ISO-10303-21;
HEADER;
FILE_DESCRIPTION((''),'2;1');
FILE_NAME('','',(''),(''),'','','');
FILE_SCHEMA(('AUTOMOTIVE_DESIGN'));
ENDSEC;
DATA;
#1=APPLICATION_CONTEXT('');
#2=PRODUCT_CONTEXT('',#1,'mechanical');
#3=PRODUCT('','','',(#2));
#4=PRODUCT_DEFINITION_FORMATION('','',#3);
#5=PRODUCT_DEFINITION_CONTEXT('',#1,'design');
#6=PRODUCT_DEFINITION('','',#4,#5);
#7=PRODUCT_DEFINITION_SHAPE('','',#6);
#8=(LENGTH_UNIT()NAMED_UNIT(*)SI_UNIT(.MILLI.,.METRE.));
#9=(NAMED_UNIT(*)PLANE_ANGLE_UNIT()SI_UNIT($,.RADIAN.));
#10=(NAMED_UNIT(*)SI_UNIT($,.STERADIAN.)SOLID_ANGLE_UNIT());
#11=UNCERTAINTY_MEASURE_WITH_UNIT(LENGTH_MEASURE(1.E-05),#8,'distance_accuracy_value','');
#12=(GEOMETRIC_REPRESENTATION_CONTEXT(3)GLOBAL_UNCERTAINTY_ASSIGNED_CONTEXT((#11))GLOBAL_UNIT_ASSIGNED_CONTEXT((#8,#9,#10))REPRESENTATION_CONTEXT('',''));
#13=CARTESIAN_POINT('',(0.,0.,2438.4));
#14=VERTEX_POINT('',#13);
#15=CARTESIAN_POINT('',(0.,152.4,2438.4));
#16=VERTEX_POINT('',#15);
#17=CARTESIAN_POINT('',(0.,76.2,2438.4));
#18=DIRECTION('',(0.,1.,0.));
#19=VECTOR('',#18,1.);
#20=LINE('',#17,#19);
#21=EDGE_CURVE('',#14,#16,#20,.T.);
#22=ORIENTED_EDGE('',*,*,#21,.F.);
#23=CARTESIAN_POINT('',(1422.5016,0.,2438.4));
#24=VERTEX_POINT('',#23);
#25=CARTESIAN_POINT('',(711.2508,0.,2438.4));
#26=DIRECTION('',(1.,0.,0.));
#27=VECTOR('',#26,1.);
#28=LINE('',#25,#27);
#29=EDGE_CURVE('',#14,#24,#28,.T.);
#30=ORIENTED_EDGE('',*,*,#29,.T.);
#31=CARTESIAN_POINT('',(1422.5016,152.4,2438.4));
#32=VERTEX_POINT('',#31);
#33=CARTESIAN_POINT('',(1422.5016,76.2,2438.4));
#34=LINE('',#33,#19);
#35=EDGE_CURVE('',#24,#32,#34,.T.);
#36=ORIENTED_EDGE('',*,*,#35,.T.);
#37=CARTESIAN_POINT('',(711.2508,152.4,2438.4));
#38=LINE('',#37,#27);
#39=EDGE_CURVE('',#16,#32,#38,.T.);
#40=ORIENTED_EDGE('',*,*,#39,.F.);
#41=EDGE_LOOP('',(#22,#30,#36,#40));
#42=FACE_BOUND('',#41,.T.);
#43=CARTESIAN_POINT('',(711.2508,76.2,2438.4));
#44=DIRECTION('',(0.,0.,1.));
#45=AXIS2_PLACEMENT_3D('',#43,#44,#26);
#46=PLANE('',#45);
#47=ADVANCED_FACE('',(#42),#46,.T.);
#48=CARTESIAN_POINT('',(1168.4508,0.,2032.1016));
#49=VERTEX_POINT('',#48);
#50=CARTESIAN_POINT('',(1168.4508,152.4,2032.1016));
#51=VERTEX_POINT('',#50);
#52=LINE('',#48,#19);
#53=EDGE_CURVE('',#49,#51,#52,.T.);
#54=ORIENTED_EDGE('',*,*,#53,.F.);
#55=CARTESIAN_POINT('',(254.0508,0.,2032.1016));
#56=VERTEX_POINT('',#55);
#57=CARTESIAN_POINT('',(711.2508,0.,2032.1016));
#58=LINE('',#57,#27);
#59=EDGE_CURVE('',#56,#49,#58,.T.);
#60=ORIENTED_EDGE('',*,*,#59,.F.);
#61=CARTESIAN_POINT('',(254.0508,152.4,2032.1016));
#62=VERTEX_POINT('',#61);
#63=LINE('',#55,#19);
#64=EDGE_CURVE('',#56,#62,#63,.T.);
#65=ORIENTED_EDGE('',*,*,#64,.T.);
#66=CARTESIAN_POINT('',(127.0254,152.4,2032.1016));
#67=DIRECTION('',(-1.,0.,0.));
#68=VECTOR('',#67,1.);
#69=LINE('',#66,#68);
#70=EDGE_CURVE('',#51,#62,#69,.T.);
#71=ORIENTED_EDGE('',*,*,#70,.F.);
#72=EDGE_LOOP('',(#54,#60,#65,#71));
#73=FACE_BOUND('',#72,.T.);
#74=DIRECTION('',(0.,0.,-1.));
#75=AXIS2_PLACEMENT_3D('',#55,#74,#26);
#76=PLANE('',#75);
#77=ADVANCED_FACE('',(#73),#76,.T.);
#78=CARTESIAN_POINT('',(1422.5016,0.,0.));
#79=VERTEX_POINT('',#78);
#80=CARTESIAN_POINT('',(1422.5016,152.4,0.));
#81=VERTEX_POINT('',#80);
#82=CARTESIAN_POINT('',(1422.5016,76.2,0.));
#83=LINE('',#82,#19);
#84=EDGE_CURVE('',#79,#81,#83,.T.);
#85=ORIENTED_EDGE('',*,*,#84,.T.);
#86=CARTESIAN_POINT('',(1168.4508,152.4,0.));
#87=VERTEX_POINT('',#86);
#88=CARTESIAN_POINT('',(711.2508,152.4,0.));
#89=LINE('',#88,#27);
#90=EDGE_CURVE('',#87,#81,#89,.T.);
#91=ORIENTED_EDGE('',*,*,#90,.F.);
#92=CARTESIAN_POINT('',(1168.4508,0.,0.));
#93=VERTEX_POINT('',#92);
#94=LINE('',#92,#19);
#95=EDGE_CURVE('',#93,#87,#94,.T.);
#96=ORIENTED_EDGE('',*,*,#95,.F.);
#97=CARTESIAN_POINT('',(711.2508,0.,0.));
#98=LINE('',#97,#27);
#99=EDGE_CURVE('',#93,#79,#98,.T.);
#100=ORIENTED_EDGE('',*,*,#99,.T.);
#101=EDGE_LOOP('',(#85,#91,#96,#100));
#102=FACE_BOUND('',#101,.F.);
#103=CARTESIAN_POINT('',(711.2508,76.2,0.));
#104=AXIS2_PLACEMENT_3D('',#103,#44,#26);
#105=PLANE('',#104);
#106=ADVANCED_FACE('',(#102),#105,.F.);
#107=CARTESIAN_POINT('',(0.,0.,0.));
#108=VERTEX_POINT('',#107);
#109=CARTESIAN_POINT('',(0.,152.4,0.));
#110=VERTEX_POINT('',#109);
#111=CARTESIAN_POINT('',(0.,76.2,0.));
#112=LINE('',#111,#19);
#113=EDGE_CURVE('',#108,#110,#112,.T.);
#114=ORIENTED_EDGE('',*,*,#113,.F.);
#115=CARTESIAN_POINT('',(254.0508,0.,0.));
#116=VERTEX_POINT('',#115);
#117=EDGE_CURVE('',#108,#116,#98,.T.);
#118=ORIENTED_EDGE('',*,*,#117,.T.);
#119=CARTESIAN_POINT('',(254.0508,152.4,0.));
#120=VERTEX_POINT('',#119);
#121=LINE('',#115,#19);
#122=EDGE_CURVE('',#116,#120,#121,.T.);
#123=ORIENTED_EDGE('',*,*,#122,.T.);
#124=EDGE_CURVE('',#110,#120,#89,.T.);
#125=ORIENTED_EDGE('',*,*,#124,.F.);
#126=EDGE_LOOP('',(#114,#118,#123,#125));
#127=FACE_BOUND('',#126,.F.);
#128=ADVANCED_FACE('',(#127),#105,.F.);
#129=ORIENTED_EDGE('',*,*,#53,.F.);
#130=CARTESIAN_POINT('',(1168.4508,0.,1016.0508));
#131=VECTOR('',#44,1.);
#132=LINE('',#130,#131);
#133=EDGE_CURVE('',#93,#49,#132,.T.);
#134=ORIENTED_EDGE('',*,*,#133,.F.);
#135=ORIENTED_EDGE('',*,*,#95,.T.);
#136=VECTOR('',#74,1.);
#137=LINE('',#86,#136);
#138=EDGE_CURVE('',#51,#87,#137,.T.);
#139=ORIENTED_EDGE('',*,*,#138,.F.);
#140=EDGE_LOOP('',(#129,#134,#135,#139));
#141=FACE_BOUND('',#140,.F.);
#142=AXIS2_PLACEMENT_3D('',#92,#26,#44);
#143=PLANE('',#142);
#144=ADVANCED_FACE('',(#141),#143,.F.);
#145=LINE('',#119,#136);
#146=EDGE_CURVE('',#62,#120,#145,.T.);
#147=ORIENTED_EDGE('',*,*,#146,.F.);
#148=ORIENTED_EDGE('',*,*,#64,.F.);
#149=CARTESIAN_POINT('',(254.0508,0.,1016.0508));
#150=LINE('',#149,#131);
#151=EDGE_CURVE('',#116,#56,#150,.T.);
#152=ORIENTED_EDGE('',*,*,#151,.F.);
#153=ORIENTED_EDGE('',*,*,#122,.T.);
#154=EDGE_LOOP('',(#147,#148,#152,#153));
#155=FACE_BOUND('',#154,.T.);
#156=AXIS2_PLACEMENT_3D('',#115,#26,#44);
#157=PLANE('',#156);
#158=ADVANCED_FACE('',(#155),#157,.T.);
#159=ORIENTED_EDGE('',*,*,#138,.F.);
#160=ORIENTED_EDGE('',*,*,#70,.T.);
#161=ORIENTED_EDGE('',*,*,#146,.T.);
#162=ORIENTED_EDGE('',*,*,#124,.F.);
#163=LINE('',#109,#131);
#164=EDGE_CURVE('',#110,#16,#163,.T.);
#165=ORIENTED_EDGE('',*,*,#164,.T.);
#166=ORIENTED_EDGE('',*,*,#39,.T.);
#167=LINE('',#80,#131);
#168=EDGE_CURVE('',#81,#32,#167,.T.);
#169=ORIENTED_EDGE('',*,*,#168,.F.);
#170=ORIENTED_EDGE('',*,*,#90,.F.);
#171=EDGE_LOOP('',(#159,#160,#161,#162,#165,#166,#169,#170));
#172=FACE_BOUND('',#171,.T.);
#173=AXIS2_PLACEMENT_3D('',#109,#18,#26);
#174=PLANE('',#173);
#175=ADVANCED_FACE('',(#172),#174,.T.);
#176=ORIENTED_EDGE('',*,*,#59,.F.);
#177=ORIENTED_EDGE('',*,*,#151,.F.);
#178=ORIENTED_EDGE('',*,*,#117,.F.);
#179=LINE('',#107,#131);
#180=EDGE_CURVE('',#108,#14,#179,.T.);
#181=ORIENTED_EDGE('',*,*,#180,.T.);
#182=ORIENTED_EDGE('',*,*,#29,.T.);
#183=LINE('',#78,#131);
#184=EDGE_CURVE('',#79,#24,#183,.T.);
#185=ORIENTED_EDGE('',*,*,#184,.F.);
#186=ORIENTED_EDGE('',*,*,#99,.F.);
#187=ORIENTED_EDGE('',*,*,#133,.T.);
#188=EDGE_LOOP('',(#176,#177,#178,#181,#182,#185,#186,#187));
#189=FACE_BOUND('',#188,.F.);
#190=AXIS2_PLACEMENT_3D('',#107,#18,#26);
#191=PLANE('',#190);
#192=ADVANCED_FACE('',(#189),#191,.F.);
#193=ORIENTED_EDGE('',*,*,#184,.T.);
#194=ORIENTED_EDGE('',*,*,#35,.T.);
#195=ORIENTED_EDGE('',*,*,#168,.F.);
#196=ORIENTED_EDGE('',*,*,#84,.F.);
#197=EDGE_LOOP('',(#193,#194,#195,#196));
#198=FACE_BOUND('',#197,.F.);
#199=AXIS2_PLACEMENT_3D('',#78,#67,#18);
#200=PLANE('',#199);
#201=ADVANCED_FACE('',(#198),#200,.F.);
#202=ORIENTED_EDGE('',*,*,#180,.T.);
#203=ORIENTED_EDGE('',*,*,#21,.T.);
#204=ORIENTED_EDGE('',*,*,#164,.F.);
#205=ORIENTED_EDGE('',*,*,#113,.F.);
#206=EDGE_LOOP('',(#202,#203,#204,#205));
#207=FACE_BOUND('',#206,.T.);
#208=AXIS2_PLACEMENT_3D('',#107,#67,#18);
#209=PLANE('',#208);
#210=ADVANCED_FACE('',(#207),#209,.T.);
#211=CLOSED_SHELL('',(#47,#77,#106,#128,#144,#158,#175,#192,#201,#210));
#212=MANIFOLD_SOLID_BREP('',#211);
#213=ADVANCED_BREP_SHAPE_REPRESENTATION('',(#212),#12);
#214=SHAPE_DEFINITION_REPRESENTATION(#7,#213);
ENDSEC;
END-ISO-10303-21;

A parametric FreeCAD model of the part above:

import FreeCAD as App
import Part
import Sketcher
from FreeCAD import Vector
Q = App.Units.Quantity

doc = App.newDocument("Part")
params = doc.addObject("Spreadsheet::Sheet", "Params")
for row, (alias, value) in enumerate([
    ("sketch1_height", "6 in"),
    ("sketch1_width", "56.004 in"),
    ("pad1_length", "96 in"),
    ("sketch2_width", "36 in"),
    ("sketch2_height", "80.004 in"),
], start=1):
    params.set(f"A{row}", alias)
    params.set(f"B{row}", "=" + value)
    params.setAlias(f"B{row}", alias)

body = doc.addObject("PartDesign::Body", "Body")

sketch1 = body.newObject("Sketcher::SketchObject", "Sketch")
sketch1.AttachmentSupport = (doc.getObject("XY_Plane"), [""])
sketch1.MapMode = "FlatFace"
sketch1.addGeometry(Part.LineSegment(Vector(0, 152, 0), Vector(0, 0, 0)), False)
sketch1.addGeometry(Part.LineSegment(Vector(0, 0, 0), Vector(1423, 0, 0)), False)
sketch1.addGeometry(Part.LineSegment(Vector(1423, 0, 0), Vector(1423, 152, 0)), False)
sketch1.addGeometry(Part.LineSegment(Vector(1423, 152, 0), Vector(0, 152, 0)), False)
sketch1.addConstraint(Sketcher.Constraint("Coincident", 0, 2, 1, 1))
sketch1.addConstraint(Sketcher.Constraint("Coincident", 1, 2, 2, 1))
sketch1.addConstraint(Sketcher.Constraint("Coincident", 2, 2, 3, 1))
sketch1.addConstraint(Sketcher.Constraint("Coincident", 3, 2, 0, 1))
sketch1.addConstraint(Sketcher.Constraint("Vertical", 0))
sketch1.addConstraint(Sketcher.Constraint("Horizontal", 1))
sketch1.addConstraint(Sketcher.Constraint("Vertical", 2))
sketch1.addConstraint(Sketcher.Constraint("Horizontal", 3))
sketch1.addConstraint(Sketcher.Constraint("Coincident", 0, 2, -1, 1))
sketch1.addConstraint(Sketcher.Constraint("DistanceY", 0, 2, 0, 1, Q("6 in")))
sketch1.addConstraint(Sketcher.Constraint("DistanceX", 1, 1, 1, 2, Q("56.004 in")))
sketch1.setExpression("Constraints[9]", "Params.sketch1_height")
sketch1.setExpression("Constraints[10]", "Params.sketch1_width")
pad1 = body.newObject("PartDesign::Pad", "Pad")
pad1.Profile = sketch1
pad1.setExpression("Length", "Params.pad1_length")

sketch2 = body.newObject("Sketcher::SketchObject", "Sketch001")
sketch2.AttachmentSupport = (doc.getObject("XZ_Plane"), [""])
sketch2.MapMode = "FlatFace"
sketch2.addGeometry(Part.LineSegment(Vector(254, 2032, 0), Vector(254, 0, 0)), False)
sketch2.addGeometry(Part.LineSegment(Vector(254, 0, 0), Vector(1168, 0, 0)), False)
sketch2.addGeometry(Part.LineSegment(Vector(1168, 0, 0), Vector(1168, 2032, 0)), False)
sketch2.addGeometry(Part.LineSegment(Vector(1168, 2032, 0), Vector(254, 2032, 0)), False)
sketch2.addConstraint(Sketcher.Constraint("Coincident", 0, 2, 1, 1))
sketch2.addConstraint(Sketcher.Constraint("Coincident", 1, 2, 2, 1))
sketch2.addConstraint(Sketcher.Constraint("Coincident", 2, 2, 3, 1))
sketch2.addConstraint(Sketcher.Constraint("Coincident", 3, 2, 0, 1))
sketch2.addConstraint(Sketcher.Constraint("Vertical", 0))
sketch2.addConstraint(Sketcher.Constraint("Horizontal", 1))
sketch2.addConstraint(Sketcher.Constraint("Vertical", 2))
sketch2.addConstraint(Sketcher.Constraint("Horizontal", 3))
sketch2.addConstraint(Sketcher.Constraint("PointOnObject", 0, 2, -1))
sketch2.addConstraint(Sketcher.Constraint("DistanceX", 1, 1, 1, 2, Q("36 in")))
sketch2.addConstraint(Sketcher.Constraint("DistanceY", 0, 2, 0, 1, Q("80.004 in")))
sketch2.addConstraint(Sketcher.Constraint("DistanceX", -1, 1, 0, 2, Q("10.002 in")))
sketch2.setExpression("Constraints[9]", "Params.sketch2_width")
sketch2.setExpression("Constraints[10]", "Params.sketch2_height")
pocket1 = body.newObject("PartDesign::Pocket", "Pocket")
pocket1.Profile = sketch2
pocket1.Type = "ThroughAll"

doc.recompute()
